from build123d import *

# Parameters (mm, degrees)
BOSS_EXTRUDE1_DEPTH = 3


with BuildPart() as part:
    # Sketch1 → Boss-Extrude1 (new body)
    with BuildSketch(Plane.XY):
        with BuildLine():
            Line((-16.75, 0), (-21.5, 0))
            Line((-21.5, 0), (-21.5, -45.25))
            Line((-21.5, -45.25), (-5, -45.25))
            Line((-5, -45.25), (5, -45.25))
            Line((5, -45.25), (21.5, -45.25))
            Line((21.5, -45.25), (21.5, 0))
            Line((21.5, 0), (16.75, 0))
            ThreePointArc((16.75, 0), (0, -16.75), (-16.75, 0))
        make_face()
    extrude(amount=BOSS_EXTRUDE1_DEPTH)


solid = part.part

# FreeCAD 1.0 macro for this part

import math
import FreeCAD as App
import Part
import Sketcher

V = App.Vector
Q = App.Units.Quantity

doc = App.newDocument("Part")
body = doc.addObject("PartDesign::Body", "Body")

sketch1 = doc.addObject("Sketcher::SketchObject", "Sketch")
body.addObject(sketch1)
sketch1.AttachmentSupport = (doc.XY_Plane, [""])
sketch1.MapMode = "FlatFace"
sketch1.addGeometry(Part.LineSegment(V(-16.8, 0, 0), V(-21.5, 0, 0)), False)
sketch1.addGeometry(Part.LineSegment(V(-21.5, 0, 0), V(-21.5, -45.2, 0)), False)
sketch1.addGeometry(Part.LineSegment(V(-21.5, -45.2, 0), V(21.5, -45.2, 0)), False)
sketch1.addGeometry(Part.LineSegment(V(21.5, -45.2, 0), V(21.5, 0, 0)), False)
sketch1.addGeometry(Part.LineSegment(V(21.5, 0, 0), V(16.8, 0, 0)), False)
sketch1.addGeometry(Part.ArcOfCircle(Part.Circle(V(0, 0, 0), V(0, 0, 1), 16.8), math.radians(180), math.radians(360)), False)
sketch1.addConstraint(Sketcher.Constraint("Coincident", 0, 2, 1, 1))
sketch1.addConstraint(Sketcher.Constraint("Coincident", 1, 2, 2, 1))
sketch1.addConstraint(Sketcher.Constraint("Coincident", 2, 2, 3, 1))
sketch1.addConstraint(Sketcher.Constraint("Coincident", 3, 2, 4, 1))
sketch1.addConstraint(Sketcher.Constraint("Coincident", 4, 2, 5, 2))
sketch1.addConstraint(Sketcher.Constraint("Coincident", 5, 1, 0, 1))
sketch1.addConstraint(Sketcher.Constraint("Horizontal", 0))
sketch1.addConstraint(Sketcher.Constraint("Vertical", 1))
sketch1.addConstraint(Sketcher.Constraint("Horizontal", 2))
sketch1.addConstraint(Sketcher.Constraint("Vertical", 3))
sketch1.addConstraint(Sketcher.Constraint("Horizontal", 4))
sketch1.addConstraint(Sketcher.Constraint("Coincident", 5, 3, -1, 1))
sketch1.addConstraint(Sketcher.Constraint("Symmetric", 0, 2, 3, 2, -1, 1))
sketch1.addConstraint(Sketcher.Constraint("PointOnObject", 0, 2, -1))
sketch1.addConstraint(Sketcher.Constraint("DistanceX", 2, 1, 2, 2, Q("43 mm")))
sketch1.addConstraint(Sketcher.Constraint("Radius", 5, Q("16.75 mm")))
sketch1.addConstraint(Sketcher.Constraint("DistanceY", 1, 2, 1, 1, Q("45.25 mm")))
pad1 = doc.addObject("PartDesign::Pad", "Pad")
body.addObject(pad1)
pad1.Profile = sketch1
pad1.Length = 3

doc.recompute()
